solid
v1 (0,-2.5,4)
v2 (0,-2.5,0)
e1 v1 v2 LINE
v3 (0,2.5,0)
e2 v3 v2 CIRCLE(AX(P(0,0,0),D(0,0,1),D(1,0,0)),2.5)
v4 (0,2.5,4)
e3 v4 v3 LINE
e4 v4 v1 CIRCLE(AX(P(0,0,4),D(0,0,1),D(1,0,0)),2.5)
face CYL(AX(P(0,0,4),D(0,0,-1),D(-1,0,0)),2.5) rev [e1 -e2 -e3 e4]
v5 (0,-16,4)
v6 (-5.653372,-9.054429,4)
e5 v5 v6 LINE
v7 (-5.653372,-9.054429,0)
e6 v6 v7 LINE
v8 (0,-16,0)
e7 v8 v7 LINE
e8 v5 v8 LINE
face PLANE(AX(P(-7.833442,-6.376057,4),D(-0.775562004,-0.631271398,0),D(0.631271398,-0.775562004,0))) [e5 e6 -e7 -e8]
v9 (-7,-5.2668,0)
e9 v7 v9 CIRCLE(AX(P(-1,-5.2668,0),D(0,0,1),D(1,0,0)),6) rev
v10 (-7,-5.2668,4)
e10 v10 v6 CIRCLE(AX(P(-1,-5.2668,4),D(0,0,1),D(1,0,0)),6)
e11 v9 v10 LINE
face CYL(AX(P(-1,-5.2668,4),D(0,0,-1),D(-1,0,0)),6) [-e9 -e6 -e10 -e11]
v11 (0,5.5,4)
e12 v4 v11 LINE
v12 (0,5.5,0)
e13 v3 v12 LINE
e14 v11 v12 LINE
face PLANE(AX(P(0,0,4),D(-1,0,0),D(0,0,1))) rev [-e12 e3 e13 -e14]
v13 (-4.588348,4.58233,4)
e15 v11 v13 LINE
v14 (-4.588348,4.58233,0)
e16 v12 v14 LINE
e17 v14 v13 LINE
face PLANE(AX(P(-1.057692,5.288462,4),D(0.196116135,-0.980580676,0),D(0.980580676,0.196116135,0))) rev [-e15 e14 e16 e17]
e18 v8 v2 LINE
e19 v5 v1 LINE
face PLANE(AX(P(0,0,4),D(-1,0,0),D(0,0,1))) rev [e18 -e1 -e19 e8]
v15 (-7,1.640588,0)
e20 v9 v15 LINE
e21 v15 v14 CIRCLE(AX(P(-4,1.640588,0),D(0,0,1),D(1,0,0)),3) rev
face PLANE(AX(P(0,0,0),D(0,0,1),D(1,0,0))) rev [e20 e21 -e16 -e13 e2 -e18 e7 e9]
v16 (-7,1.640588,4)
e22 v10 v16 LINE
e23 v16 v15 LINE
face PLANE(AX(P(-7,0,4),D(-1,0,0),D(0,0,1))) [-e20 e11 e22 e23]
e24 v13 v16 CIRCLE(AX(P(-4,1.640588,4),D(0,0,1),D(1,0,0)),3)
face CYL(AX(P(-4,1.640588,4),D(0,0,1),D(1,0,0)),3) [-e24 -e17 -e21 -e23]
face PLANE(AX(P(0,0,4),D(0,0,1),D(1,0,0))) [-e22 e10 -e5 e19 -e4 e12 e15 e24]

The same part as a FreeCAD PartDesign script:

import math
import FreeCAD as App
import Part
import Sketcher
Q = App.Units.Quantity


def edges_at(feature, points):
    """Names of the edges that pass closest to the given points."""
    edges = feature.Shape.Edges
    near = lambda p: min(range(len(edges)), key=lambda i: edges[i].distToShape(Part.Vertex(*p))[0])
    return sorted({f"Edge{near(p) + 1}" for p in points})

doc = App.newDocument("Part")
body = doc.addObject("PartDesign::Body", "Body")

# Sketch on XY plane
sketch1 = body.newObject("Sketcher::SketchObject", "Sketch")
sketch1.AttachmentSupport = (doc.getObject("XY_Plane"), [""])
sketch1.MapMode = "FlatFace"
sketch1.addGeometry(Part.LineSegment(App.Vector(0, 2.5, 0), App.Vector(0, 5.5, 0)), False)
sketch1.addGeometry(Part.LineSegment(App.Vector(0, 5.5, 0), App.Vector(-7, 4.1, 0)), False)
sketch1.addGeometry(Part.LineSegment(App.Vector(-7, 4.1, 0), App.Vector(-7, -7.4, 0)), False)
sketch1.addGeometry(Part.LineSegment(App.Vector(-7, -7.4, 0), App.Vector(0, -16, 0)), False)
sketch1.addGeometry(Part.LineSegment(App.Vector(0, -16, 0), App.Vector(0, -2.5, 0)), False)
sketch1.addGeometry(Part.ArcOfCircle(Part.Circle(App.Vector(0, 0, 0), App.Vector(0, 0, 1), 2.5), math.radians(90), math.radians(270)), False)
sketch1.addConstraint(Sketcher.Constraint("Coincident", 0, 2, 1, 1))
sketch1.addConstraint(Sketcher.Constraint("Coincident", 1, 2, 2, 1))
sketch1.addConstraint(Sketcher.Constraint("Coincident", 2, 2, 3, 1))
sketch1.addConstraint(Sketcher.Constraint("Coincident", 3, 2, 4, 1))
sketch1.addConstraint(Sketcher.Constraint("Coincident", 4, 2, 5, 2))
sketch1.addConstraint(Sketcher.Constraint("Coincident", 5, 1, 0, 1))
sketch1.addConstraint(Sketcher.Constraint("Vertical", 0))
sketch1.addConstraint(Sketcher.Constraint("Vertical", 2))
sketch1.addConstraint(Sketcher.Constraint("Vertical", 4))
sketch1.addConstraint(Sketcher.Constraint("Coincident", 5, 3, -1, 1))
sketch1.addConstraint(Sketcher.Constraint("PointOnObject", 0, 2, -2))
sketch1.addConstraint(Sketcher.Constraint("PointOnObject", 3, 2, -2))
sketch1.addConstraint(Sketcher.Constraint("Radius", 5, Q("2.5 mm")))
sketch1.addConstraint(Sketcher.Constraint("DistanceY", 0, 1, 0, 2, Q("3 mm")))
sketch1.addConstraint(Sketcher.Constraint("DistanceY", 2, 2, 2, 1, Q("11.5 mm")))
sketch1.addConstraint(Sketcher.Constraint("DistanceY", 4, 1, 4, 2, Q("13.5 mm")))
sketch1.addConstraint(Sketcher.Constraint("DistanceX", 1, 2, -1, 1, Q("7 mm")))
sketch1.addConstraint(Sketcher.Constraint("DistanceY", -1, 1, 1, 2, Q("4.1 mm")))
pad1 = body.newObject("PartDesign::Pad", "Pad")
pad1.Profile = sketch1
pad1.Length = 4
doc.recompute()

fillet = body.newObject("PartDesign::Fillet", "Fillet")
fillet.Base = (pad1, edges_at(pad1, [(-7, 4.1, 2)]))
fillet.Radius = 3
doc.recompute()

fillet2 = body.newObject("PartDesign::Fillet", "Fillet001")
fillet2.Base = (fillet, edges_at(fillet, [(-7, -7.4, 2)]))
fillet2.Radius = 6

doc.recompute()
